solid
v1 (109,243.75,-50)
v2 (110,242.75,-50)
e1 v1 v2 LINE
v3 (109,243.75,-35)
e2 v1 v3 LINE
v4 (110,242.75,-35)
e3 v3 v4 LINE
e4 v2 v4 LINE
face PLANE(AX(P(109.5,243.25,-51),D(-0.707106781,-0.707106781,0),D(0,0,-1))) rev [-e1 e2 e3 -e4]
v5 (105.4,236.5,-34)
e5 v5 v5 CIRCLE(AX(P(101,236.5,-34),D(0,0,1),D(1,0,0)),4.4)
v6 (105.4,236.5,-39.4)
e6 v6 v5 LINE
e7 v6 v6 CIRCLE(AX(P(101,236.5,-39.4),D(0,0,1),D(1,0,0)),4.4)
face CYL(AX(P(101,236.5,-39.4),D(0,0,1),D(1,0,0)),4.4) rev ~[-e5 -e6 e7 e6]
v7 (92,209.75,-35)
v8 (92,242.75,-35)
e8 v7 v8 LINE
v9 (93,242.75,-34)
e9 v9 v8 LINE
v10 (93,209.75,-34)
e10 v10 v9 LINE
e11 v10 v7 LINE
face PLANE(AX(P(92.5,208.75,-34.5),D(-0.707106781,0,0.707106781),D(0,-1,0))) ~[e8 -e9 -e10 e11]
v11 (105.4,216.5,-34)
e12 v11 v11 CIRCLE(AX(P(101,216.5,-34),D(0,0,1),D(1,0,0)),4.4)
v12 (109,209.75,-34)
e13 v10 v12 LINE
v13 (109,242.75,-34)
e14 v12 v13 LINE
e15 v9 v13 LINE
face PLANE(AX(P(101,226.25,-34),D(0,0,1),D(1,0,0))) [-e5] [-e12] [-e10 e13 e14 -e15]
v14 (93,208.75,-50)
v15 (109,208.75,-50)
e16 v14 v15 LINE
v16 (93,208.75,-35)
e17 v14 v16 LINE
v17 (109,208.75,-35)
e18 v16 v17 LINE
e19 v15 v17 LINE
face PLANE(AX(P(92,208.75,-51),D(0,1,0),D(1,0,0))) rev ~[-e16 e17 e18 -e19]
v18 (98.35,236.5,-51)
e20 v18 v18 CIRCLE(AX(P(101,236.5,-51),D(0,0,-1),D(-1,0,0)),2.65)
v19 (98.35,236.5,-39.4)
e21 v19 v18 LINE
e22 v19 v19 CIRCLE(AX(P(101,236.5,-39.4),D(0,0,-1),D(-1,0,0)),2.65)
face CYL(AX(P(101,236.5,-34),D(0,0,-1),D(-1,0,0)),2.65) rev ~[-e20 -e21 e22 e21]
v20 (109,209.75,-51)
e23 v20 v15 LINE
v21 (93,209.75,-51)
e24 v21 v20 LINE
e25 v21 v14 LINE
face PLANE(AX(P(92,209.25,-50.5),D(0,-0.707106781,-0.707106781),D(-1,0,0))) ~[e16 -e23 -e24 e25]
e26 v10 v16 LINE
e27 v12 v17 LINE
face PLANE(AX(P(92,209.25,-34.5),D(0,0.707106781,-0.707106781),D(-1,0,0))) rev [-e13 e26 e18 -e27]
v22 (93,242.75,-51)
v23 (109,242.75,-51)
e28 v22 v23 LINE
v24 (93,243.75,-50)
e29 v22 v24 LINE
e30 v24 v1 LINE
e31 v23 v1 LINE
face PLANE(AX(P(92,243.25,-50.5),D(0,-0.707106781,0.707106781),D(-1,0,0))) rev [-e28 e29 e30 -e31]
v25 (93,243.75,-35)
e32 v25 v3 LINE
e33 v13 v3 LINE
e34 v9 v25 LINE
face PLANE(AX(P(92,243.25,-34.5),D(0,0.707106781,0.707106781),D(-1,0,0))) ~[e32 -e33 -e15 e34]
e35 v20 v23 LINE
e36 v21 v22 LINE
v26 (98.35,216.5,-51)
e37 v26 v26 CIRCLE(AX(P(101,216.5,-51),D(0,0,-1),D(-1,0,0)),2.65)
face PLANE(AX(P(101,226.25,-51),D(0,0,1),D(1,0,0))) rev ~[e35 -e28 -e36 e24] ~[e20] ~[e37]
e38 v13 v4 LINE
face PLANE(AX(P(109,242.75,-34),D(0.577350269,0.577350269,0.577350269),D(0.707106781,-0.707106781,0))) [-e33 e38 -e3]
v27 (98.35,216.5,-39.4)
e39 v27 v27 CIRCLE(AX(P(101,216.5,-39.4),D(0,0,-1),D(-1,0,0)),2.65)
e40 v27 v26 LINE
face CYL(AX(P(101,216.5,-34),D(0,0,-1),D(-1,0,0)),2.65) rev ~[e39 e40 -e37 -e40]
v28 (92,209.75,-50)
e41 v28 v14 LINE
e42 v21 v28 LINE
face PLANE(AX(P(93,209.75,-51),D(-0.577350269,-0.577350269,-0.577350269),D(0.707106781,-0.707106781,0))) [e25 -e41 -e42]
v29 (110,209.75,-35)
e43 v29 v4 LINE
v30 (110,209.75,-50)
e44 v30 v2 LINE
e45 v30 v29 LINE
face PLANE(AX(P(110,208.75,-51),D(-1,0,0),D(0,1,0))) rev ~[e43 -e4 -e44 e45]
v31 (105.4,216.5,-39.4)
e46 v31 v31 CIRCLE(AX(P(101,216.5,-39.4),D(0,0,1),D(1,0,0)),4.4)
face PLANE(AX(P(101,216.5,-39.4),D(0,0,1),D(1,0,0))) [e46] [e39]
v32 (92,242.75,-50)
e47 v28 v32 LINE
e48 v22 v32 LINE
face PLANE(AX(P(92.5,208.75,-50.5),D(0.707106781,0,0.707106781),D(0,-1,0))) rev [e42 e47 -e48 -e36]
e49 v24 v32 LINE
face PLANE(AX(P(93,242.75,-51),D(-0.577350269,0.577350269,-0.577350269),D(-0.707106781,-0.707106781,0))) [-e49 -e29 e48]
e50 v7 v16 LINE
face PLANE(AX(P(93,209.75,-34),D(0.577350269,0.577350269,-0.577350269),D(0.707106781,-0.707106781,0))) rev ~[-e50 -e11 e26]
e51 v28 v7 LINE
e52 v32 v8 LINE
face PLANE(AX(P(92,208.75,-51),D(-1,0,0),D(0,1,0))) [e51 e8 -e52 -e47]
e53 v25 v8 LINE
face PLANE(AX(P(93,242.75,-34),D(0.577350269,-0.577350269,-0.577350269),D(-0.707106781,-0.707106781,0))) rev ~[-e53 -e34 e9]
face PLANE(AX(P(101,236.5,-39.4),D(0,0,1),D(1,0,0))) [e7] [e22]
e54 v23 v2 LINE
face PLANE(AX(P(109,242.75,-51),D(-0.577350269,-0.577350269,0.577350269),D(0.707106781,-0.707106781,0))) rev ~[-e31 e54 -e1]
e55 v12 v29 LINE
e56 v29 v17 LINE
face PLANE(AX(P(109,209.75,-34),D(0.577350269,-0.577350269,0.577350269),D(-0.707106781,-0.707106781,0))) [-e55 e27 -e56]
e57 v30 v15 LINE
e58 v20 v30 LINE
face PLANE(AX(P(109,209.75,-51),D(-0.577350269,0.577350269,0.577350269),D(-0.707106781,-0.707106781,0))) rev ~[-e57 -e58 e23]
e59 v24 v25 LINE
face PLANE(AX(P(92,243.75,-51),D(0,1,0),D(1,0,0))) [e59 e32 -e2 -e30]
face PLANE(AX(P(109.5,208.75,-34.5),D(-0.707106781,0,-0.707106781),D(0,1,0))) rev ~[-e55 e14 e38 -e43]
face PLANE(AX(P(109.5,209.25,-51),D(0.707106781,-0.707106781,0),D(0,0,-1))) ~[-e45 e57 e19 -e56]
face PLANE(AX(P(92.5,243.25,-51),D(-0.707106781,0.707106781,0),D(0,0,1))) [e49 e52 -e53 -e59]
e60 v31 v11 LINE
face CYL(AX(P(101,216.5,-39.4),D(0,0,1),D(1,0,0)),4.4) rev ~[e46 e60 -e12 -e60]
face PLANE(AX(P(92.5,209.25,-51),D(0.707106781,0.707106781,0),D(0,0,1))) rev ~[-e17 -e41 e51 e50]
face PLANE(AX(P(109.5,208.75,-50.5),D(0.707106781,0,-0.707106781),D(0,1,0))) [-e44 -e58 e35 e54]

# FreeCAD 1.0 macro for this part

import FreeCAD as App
import Part
import Sketcher
from FreeCAD import Vector


def edges_at(feature, points):
    """Names of the edges that pass closest to the given points."""
    edges = feature.Shape.Edges
    near = lambda p: min(range(len(edges)), key=lambda i: edges[i].distToShape(Part.Vertex(*p))[0])
    return sorted({f"Edge{near(p) + 1}" for p in points})

doc = App.newDocument("Part")
params = doc.addObject("Spreadsheet::Sheet", "Params")
for row, (alias, value) in enumerate([
    ("sketch1_width", "18 mm"),
    ("sketch1_height", "35 mm"),
    ("pad1_length", "17 mm"),
    ("sketch2_diameter", "5.3 mm"),
    ("hole_diameter", "5.3 mm"),
    ("hole_depth", "25 mm"),
    ("hole_cbore_diameter", "8.8 mm"),
    ("hole_cbore_depth", "5.4 mm"),
    ("chamfer_size", "1 mm"),
], start=1):
    params.set(f"A{row}", alias)
    params.set(f"B{row}", "=" + value)
    params.setAlias(f"B{row}", alias)

body = doc.addObject("PartDesign::Body", "Body")

# Sketch on XY plane
sketch1 = body.newObject("Sketcher::SketchObject", "Sketch")
sketch1.AttachmentSupport = (doc.getObject("XY_Plane"), [""])
sketch1.MapMode = "FlatFace"
sketch1.AttachmentOffset = App.Placement(Vector(0, 0, -51), App.Rotation())
sketch1.addGeometry([
    Part.LineSegment(Vector(92, 240, 0), Vector(92, 205, 0)),
    Part.LineSegment(Vector(92, 205, 0), Vector(110, 205, 0)),
    Part.LineSegment(Vector(110, 205, 0), Vector(110, 240, 0)),
    Part.LineSegment(Vector(110, 240, 0), Vector(92, 240, 0)),
], False)
sketch1.addConstraint([
    Sketcher.Constraint("Coincident", 0, 2, 1, 1),
    Sketcher.Constraint("Coincident", 1, 2, 2, 1),
    Sketcher.Constraint("Coincident", 2, 2, 3, 1),
    Sketcher.Constraint("Coincident", 3, 2, 0, 1),
    Sketcher.Constraint("Vertical", 0),
    Sketcher.Constraint("Horizontal", 1),
    Sketcher.Constraint("Vertical", 2),
    Sketcher.Constraint("Horizontal", 3),
    Sketcher.Constraint("DistanceX", 1, 1, 1, 2, 18.0),
    Sketcher.Constraint("DistanceY", 0, 2, 0, 1, 35.0),
    Sketcher.Constraint("DistanceX", -1, 1, 0, 2, 92.0),
    Sketcher.Constraint("DistanceY", -1, 1, 0, 2, 205.0),
])
sketch1.setExpression("Constraints[8]", "Params.sketch1_width")
sketch1.setExpression("Constraints[9]", "Params.sketch1_height")
pad1 = body.newObject("PartDesign::Pad", "Pad")
pad1.Profile = sketch1
pad1.setExpression("Length", "Params.pad1_length")

# Sketch on XY plane
sketch2 = body.newObject("Sketcher::SketchObject", "Sketch001")
sketch2.AttachmentSupport = (doc.getObject("XY_Plane"), [""])
sketch2.MapMode = "FlatFace"
sketch2.AttachmentOffset = App.Placement(Vector(0, 0, -34), App.Rotation())
sketch2.addGeometry([
    Part.Circle(Vector(101, 232.8, 0), Vector(0, 0, 1), 2.6),
    Part.Circle(Vector(101, 212.8, 0), Vector(0, 0, 1), 2.6),
], False)
sketch2.addConstraint([
    Sketcher.Constraint("Equal", 0, 1),
    Sketcher.Constraint("Vertical", 0, 3, 1, 3),
    Sketcher.Constraint("Diameter", 0, 5.3),
    Sketcher.Constraint("DistanceX", -1, 1, 0, 3, 101.0),
    Sketcher.Constraint("DistanceY", 1, 3, 0, 3, 20.0),
    Sketcher.Constraint("DistanceY", -1, 1, 0, 3, 232.75),
])
sketch2.setExpression("Constraints[2]", "Params.sketch2_diameter")
doc.recompute()
hole = body.newObject("PartDesign::Hole", "Hole")
hole.Profile = sketch2
hole.ThreadType = "None"
hole.setExpression("Diameter", "Params.hole_diameter")
hole.DepthType = "Dimension"
hole.setExpression("Depth", "Params.hole_depth")
hole.DrillPoint = "Flat"
hole.HoleCutType = "Counterbore"
hole.setExpression("HoleCutDiameter", "Params.hole_cbore_diameter")
hole.setExpression("HoleCutDepth", "Params.hole_cbore_depth")
doc.recompute()

chamfer = body.newObject("PartDesign::Chamfer", "Chamfer")
chamfer.Base = (hole, edges_at(hole, [
    (92, 240, -42.5),
    (110, 240, -42.5),
    (101, 240, -51),
    (101, 240, -34),
    (110, 205, -42.5),
    (110, 222.5, -51),
    (110, 222.5, -34),
    (92, 205, -42.5),
    (92, 222.5, -51),
    (92, 222.5, -34),
    (101, 205, -51),
    (101, 205, -34),
]))
chamfer.setExpression("Size", "Params.chamfer_size")
body2 = doc.addObject("PartDesign::Body", "Body001")
doc.recompute()

body.Placement = App.Placement(Vector(0, 3.75, 0), App.Rotation(Vector(0, 0, 1), 0))
boolean = body2.newObject("PartDesign::Boolean", "Boolean")
boolean.Type = "Fuse"
boolean.addObjects([body])

doc.recompute()
